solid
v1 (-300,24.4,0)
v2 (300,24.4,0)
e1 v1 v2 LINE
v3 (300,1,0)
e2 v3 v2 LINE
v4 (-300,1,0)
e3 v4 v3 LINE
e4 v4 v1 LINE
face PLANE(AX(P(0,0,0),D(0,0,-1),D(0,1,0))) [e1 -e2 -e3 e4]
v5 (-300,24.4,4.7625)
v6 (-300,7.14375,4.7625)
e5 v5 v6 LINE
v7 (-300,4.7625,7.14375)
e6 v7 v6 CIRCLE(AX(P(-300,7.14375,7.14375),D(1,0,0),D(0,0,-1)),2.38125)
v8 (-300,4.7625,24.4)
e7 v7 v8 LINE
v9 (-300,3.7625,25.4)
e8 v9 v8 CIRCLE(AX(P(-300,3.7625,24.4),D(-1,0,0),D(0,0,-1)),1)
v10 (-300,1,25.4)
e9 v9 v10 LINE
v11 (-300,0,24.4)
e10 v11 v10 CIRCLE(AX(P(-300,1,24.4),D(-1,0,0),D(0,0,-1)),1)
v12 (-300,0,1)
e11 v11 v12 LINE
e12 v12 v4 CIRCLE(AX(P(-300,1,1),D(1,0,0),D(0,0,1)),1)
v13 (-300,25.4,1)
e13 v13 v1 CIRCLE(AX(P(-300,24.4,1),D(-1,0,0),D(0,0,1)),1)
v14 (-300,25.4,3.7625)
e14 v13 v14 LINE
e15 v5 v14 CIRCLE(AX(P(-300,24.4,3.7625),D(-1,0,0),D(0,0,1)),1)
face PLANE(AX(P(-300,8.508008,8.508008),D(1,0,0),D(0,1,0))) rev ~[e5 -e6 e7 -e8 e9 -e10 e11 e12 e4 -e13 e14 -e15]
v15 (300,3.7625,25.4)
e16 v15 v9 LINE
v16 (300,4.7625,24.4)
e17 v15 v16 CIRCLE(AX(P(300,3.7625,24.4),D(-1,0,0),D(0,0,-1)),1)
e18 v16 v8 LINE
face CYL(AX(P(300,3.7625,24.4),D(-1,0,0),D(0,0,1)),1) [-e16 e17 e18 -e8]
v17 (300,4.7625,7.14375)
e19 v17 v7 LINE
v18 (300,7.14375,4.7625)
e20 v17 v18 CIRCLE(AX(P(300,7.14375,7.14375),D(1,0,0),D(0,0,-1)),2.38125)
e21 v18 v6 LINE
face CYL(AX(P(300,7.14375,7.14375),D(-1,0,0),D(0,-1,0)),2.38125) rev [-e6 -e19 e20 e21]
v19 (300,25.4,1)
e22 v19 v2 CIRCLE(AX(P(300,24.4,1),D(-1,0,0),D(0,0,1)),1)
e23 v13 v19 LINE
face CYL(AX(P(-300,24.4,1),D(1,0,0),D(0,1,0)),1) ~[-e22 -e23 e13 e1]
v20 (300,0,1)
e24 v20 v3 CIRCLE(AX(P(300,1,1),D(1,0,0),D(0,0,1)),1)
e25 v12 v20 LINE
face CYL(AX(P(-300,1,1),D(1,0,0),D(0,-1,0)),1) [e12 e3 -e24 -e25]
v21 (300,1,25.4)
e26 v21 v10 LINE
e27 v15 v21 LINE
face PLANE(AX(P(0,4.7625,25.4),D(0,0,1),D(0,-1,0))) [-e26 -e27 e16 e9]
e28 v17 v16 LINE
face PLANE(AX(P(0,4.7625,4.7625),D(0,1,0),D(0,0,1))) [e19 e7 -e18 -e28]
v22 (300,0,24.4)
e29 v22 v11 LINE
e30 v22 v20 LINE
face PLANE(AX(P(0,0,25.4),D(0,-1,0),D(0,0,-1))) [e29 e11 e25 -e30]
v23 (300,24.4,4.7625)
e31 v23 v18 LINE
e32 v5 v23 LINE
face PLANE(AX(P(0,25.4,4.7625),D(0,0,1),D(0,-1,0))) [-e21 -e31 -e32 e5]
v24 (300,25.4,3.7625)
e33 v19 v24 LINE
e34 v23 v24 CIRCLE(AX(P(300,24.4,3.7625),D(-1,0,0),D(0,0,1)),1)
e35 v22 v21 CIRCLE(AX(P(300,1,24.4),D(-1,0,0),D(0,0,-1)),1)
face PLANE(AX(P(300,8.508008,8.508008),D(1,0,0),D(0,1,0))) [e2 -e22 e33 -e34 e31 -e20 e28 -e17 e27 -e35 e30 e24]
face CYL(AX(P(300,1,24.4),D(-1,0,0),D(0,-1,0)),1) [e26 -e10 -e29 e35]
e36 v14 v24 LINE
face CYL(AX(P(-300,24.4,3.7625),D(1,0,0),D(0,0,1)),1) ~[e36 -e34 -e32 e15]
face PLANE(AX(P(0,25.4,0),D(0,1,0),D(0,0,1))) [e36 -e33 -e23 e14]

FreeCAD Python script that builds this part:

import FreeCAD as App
import Part
import Sketcher
Q = App.Units.Quantity


def edges_at(feature, points):
    """Names of the edges that pass closest to the given points."""
    edges = feature.Shape.Edges
    near = lambda p: min(range(len(edges)), key=lambda i: edges[i].distToShape(Part.Vertex(*p))[0])
    return sorted({f"Edge{near(p) + 1}" for p in points})


def add_polygon(sketch, points):
    """Adds a closed chain of lines whose ends are joined by coincident constraints."""
    first, n = sketch.GeometryCount, len(points)
    for a, b in zip(points, points[1:] + points[:1]):
        sketch.addGeometry(Part.LineSegment(App.Vector(*a, 0), App.Vector(*b, 0)), False)
    for i in range(n):
        sketch.addConstraint(Sketcher.Constraint("Coincident", first + i, 2, first + (i + 1) % n, 1))

doc = App.newDocument("Part")
body = doc.addObject("PartDesign::Body", "Body")

# Sketch on YZ plane
sketch1 = doc.addObject("Sketcher::SketchObject", "Sketch")
body.addObject(sketch1)
sketch1.AttachmentSupport = (doc.YZ_Plane, [""])
sketch1.MapMode = "FlatFace"
add_polygon(sketch1, [(0, 25.4), (0, 0), (25.4, 0), (25.4, 4.8), (4.8, 4.8), (4.8, 25.4)])  # lines 0-5
sketch1.addConstraint([
    Sketcher.Constraint("Vertical", 0),
    Sketcher.Constraint("Horizontal", 1),
    Sketcher.Constraint("Vertical", 2),
    Sketcher.Constraint("Horizontal", 3),
    Sketcher.Constraint("Vertical", 4),
    Sketcher.Constraint("Horizontal", 5),
    Sketcher.Constraint("Coincident", 0, 2, -1, 1),
    Sketcher.Constraint("Equal", 1, 0),
    Sketcher.Constraint("Equal", 5, 2),
    Sketcher.Constraint("DistanceX", 1, 1, 1, 2, Q("1 in")),
    Sketcher.Constraint("DistanceX", 3, 2, 3, 1, Q("0.8125 in")),
])
pad1 = doc.addObject("PartDesign::Pad", "Pad")
body.addObject(pad1)
pad1.Profile = sketch1
pad1.Length = 600
pad1.Midplane = True
doc.recompute()

fillet = doc.addObject("PartDesign::Fillet", "Fillet")
body.addObject(fillet)
fillet.Base = (pad1, edges_at(pad1, [
    (0, 0, 25.4),
    (0, 4.763, 25.4),
    (0, 0, 0),
    (0, 25.4, 4.763),
    (0, 25.4, 0),
]))
fillet.Radius = 1
doc.recompute()

fillet2 = doc.addObject("PartDesign::Fillet", "Fillet001")
body.addObject(fillet2)
fillet2.Base = (fillet, edges_at(fillet, [(0, 4.763, 4.763)]))
fillet2.Radius = Q("0.09375 in")

doc.recompute()
